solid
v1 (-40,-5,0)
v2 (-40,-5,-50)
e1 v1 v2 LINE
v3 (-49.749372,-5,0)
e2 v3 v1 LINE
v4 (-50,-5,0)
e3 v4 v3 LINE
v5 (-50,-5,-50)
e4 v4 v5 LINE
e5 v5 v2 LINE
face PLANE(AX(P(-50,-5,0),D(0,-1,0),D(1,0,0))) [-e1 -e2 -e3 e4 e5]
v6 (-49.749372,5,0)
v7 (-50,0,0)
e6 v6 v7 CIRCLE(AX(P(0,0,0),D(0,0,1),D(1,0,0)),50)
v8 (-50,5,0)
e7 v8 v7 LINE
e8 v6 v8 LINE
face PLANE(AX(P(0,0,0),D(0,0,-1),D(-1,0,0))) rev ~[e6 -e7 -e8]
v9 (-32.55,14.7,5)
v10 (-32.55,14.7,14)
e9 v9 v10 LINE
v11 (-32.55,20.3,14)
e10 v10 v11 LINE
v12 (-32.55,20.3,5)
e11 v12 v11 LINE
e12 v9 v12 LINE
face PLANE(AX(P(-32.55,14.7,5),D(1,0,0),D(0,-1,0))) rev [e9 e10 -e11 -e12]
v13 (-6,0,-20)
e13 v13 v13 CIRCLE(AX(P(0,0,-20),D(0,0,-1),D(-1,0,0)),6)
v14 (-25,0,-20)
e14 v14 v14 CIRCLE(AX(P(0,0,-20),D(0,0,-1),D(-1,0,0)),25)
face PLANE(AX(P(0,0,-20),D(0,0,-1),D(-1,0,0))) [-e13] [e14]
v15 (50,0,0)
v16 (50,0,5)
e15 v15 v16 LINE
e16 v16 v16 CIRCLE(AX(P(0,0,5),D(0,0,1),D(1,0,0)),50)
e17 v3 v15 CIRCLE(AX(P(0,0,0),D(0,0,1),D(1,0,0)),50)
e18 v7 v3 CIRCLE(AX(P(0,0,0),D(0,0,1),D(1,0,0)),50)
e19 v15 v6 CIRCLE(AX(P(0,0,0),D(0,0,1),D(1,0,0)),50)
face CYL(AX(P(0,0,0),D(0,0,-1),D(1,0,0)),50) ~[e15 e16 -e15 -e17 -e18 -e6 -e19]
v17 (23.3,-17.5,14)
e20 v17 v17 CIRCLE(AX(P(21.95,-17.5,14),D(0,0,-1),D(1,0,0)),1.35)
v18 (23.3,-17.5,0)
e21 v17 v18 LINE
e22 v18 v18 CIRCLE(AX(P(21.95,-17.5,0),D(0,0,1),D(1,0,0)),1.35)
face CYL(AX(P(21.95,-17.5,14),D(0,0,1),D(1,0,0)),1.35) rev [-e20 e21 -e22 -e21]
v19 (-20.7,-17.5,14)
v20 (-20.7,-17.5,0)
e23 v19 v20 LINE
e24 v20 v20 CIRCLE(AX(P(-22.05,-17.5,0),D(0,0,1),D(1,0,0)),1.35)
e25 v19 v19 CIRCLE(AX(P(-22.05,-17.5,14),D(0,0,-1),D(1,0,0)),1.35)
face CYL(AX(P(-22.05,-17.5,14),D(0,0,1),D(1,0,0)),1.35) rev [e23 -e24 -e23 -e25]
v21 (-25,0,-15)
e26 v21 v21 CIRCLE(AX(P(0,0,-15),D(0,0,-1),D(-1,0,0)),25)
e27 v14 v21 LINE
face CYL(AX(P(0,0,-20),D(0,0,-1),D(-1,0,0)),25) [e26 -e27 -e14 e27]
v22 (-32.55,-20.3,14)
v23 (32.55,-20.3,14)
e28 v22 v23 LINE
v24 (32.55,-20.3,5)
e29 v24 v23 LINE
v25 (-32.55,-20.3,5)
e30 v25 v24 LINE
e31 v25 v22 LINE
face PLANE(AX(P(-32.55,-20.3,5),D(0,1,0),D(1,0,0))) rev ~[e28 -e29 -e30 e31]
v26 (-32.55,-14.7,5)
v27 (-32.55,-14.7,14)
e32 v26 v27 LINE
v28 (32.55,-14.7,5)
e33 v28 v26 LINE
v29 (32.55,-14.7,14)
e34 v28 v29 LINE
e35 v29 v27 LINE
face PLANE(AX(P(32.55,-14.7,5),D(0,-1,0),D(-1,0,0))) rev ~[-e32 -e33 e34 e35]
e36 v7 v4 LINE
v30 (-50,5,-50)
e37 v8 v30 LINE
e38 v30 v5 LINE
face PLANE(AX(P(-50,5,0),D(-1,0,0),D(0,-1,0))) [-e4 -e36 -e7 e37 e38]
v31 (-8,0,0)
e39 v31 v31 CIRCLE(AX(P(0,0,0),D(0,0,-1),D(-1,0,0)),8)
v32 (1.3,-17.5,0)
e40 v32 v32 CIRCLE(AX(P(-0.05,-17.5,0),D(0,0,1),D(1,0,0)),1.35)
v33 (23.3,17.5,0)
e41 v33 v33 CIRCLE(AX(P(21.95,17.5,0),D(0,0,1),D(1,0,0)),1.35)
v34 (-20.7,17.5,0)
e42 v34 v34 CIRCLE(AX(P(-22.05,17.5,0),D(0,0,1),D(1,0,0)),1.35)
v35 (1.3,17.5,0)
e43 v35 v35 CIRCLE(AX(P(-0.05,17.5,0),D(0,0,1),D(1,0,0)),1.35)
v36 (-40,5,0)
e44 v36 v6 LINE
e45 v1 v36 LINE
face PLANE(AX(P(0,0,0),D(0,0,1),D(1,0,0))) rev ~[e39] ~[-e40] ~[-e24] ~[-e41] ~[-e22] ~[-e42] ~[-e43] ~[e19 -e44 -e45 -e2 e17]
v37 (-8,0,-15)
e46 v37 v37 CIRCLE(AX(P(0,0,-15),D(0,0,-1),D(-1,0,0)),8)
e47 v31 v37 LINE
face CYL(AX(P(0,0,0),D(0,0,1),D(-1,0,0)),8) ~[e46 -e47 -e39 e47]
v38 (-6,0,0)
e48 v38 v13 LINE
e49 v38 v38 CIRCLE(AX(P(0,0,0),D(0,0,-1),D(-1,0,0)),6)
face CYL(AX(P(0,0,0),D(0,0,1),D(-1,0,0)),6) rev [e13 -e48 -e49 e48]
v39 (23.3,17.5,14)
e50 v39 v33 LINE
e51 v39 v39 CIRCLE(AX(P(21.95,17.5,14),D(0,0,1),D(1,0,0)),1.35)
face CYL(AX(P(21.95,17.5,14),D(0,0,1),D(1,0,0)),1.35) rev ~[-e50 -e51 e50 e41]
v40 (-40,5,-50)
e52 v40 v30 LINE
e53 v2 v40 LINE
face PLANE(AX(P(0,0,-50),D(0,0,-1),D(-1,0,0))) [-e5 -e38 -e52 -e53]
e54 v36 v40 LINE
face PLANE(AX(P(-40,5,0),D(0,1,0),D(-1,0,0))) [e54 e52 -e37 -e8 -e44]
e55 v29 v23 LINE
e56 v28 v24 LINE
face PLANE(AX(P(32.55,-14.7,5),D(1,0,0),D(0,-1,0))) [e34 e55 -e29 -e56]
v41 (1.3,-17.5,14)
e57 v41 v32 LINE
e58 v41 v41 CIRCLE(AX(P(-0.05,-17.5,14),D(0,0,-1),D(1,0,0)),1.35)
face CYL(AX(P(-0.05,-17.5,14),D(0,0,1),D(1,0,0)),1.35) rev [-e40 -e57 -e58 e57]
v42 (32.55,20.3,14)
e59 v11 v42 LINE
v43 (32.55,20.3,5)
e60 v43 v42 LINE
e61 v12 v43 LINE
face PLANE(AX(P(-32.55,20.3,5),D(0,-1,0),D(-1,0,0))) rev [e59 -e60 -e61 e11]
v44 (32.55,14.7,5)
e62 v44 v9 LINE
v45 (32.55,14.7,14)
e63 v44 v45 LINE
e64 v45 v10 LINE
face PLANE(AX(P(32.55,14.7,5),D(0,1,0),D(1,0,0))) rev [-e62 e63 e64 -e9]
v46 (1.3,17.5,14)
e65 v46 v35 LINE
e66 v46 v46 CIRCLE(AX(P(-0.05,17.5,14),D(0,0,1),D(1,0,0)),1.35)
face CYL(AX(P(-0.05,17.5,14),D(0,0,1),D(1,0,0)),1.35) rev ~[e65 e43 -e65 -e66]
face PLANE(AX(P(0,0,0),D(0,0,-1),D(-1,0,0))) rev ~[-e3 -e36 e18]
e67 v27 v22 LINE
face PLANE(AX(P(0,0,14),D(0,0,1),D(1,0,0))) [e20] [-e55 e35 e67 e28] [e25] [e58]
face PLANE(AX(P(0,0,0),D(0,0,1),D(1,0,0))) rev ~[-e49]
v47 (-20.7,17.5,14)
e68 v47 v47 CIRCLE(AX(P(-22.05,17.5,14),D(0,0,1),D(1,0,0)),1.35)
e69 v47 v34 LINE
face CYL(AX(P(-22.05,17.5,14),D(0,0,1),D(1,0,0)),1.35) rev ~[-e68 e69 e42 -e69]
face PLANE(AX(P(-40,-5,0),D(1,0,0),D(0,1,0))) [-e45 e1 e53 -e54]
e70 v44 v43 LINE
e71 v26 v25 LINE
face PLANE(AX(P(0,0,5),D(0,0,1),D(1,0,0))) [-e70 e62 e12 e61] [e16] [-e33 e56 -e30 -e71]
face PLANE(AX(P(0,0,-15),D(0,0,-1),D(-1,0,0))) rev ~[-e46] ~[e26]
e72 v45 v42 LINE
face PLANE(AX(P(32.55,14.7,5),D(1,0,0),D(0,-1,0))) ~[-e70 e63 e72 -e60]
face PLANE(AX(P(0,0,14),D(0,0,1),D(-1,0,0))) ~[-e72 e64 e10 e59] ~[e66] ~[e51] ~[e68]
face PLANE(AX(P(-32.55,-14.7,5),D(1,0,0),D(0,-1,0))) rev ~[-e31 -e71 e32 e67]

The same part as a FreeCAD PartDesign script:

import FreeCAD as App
import Part
import Sketcher

V = App.Vector
Q = App.Units.Quantity


def add_polygon(sketch, points):
    """Adds a closed chain of lines whose ends are joined by coincident constraints."""
    first, n = sketch.GeometryCount, len(points)
    for a, b in zip(points, points[1:] + points[:1]):
        sketch.addGeometry(Part.LineSegment(App.Vector(*a, 0), App.Vector(*b, 0)), False)
    for i in range(n):
        sketch.addConstraint(Sketcher.Constraint("Coincident", first + i, 2, first + (i + 1) % n, 1))

doc = App.newDocument("Part")
params = doc.addObject("Spreadsheet::Sheet", "Params")
for row, (alias, value) in enumerate([
    ("sketch1_diameter", "100 mm"),
    ("pad1_length", "5 mm"),
    ("sketch2_diameter", "16 mm"),
    ("sketch2_diameter2", "12 mm"),
    ("pad2_length", "20 mm"),
    ("sketch3_width", "10 mm"),
    ("pad3_length", "50 mm"),
    ("sketch4_height", "5.6 mm"),
    ("pad4_length", "9 mm"),
    ("sketch5_diameter", "2.7 mm"),
    ("sketch6_diameter", "50 mm"),
    ("sketch6_diameter2", "16 mm"),
    ("pad5_length", "5 mm"),
], start=1):
    params.set(f"A{row}", alias)
    params.set(f"B{row}", "=" + value)
    params.setAlias(f"B{row}", alias)

body = doc.addObject("PartDesign::Body", "Body")

sketch1 = body.newObject("Sketcher::SketchObject", "Sketch")
sketch1.AttachmentSupport = (doc.getObject("XY_Plane"), [""])
sketch1.MapMode = "FlatFace"
sketch1.addGeometry(Part.Circle(V(0, 0, 0), V(0, 0, 1), 50), False)
sketch1.addConstraint([
    Sketcher.Constraint("Coincident", 0, 3, -1, 1),
    Sketcher.Constraint("Diameter", 0, Q("100 mm")),
])
sketch1.setExpression("Constraints[1]", "Params.sketch1_diameter")
pad1 = body.newObject("PartDesign::Pad", "Pad")
pad1.Profile = sketch1
pad1.setExpression("Length", "Params.pad1_length")

sketch2 = body.newObject("Sketcher::SketchObject", "Sketch001")
sketch2.AttachmentSupport = (doc.getObject("XY_Plane"), [""])
sketch2.MapMode = "FlatFace"
sketch2.addGeometry([
    Part.Circle(V(0, 0, 0), V(0, 0, 1), 8),
    Part.Circle(V(0, 0, 0), V(0, 0, 1), 6),
], False)
sketch2.addConstraint([
    Sketcher.Constraint("Coincident", 0, 3, -1, 1),
    Sketcher.Constraint("Coincident", 1, 3, -1, 1),
    Sketcher.Constraint("Diameter", 0, Q("16 mm")),
    Sketcher.Constraint("Diameter", 1, Q("12 mm")),
])
sketch2.setExpression("Constraints[2]", "Params.sketch2_diameter")
sketch2.setExpression("Constraints[3]", "Params.sketch2_diameter2")
pad2 = body.newObject("PartDesign::Pad", "Pad001")
pad2.Profile = sketch2
pad2.setExpression("Length", "Params.pad2_length")
pad2.Reversed = True

sketch3 = body.newObject("Sketcher::SketchObject", "Sketch002")
sketch3.AttachmentSupport = (doc.getObject("XY_Plane"), [""])
sketch3.MapMode = "FlatFace"
add_polygon(sketch3, [(-50, 5), (-40, 5), (-40, -5), (-50, -5)])
sketch3.addConstraint([
    Sketcher.Constraint("Horizontal", 0),
    Sketcher.Constraint("Vertical", 1),
    Sketcher.Constraint("Horizontal", 2),
    Sketcher.Constraint("Vertical", 3),
    Sketcher.Constraint("Equal", 2, 1),
    Sketcher.Constraint("DistanceX", 0, 1, 0, 2, Q("10 mm")),
    Sketcher.Constraint("DistanceY", -1, 1, 0, 2, Q("5 mm")),
    Sketcher.Constraint("DistanceX", 0, 2, -1, 1, Q("40 mm")),
])
sketch3.setExpression("Constraints[9]", "Params.sketch3_width")
pad3 = body.newObject("PartDesign::Pad", "Pad002")
pad3.Profile = sketch3
pad3.setExpression("Length", "Params.pad3_length")
pad3.Reversed = True

sketch4 = body.newObject("Sketcher::SketchObject", "Sketch003")
sketch4.AttachmentSupport = (doc.getObject("XY_Plane"), [""])
sketch4.MapMode = "FlatFace"
sketch4.AttachmentOffset = App.Placement(V(0, 0, 5), App.Rotation())
add_polygon(sketch4, [(32.55, -20.3), (32.55, -14.7), (-32.55, -14.7), (-32.55, -20.3)])
sketch4.addConstraint([
    Sketcher.Constraint("Vertical", 0),
    Sketcher.Constraint("Horizontal", 1),
    Sketcher.Constraint("Vertical", 2),
    Sketcher.Constraint("Horizontal", 3),
    Sketcher.Constraint("DistanceY", 0, 1, 0, 2, Q("5.6 mm")),
    Sketcher.Constraint("DistanceY", 2, 2, -1, 1, Q("20.3 mm")),
    Sketcher.Constraint("DistanceX", -1, 1, 0, 2, Q("32.55 mm")),
    Sketcher.Constraint("DistanceX", 1, 2, -1, 1, Q("32.55 mm")),
])
sketch4.setExpression("Constraints[8]", "Params.sketch4_height")
pad4 = body.newObject("PartDesign::Pad", "Pad003")
pad4.Profile = sketch4
pad4.setExpression("Length", "Params.pad4_length")
doc.recompute()

mirrored = body.newObject("PartDesign::Mirrored", "Mirrored")
mirrored.Originals = [pad4]
mirrored.MirrorPlane = (doc.getObject("XZ_Plane"), [""])
body.Tip = mirrored

sketch5 = body.newObject("Sketcher::SketchObject", "Sketch004")
sketch5.AttachmentSupport = (doc.getObject("XY_Plane"), [""])
sketch5.MapMode = "FlatFace"
sketch5.AttachmentOffset = App.Placement(V(0, 0, 14), App.Rotation())
sketch5.addGeometry([
    Part.Circle(V(-0.05, 17.5, 0), V(0, 0, 1), 1.35),
    Part.Circle(V(21.95, 17.5, 0), V(0, 0, 1), 1.35),
    Part.Circle(V(-22.05, 17.5, 0), V(0, 0, 1), 1.35),
], False)
sketch5.addConstraint([
    Sketcher.Constraint("Equal", 0, 1),
    Sketcher.Constraint("Equal", 1, 2),
    Sketcher.Constraint("Horizontal", 0, 3, 1, 3),
    Sketcher.Constraint("Horizontal", 1, 3, 2, 3),
    Sketcher.Constraint("Diameter", 0, Q("2.7 mm")),
    Sketcher.Constraint("DistanceX", 0, 3, 1, 3, Q("22 mm")),
    Sketcher.Constraint("DistanceX", 2, 3, 0, 3, Q("22 mm")),
    Sketcher.Constraint("DistanceY", -1, 1, 0, 3, Q("17.5 mm")),
    Sketcher.Constraint("DistanceX", 0, 3, -1, 1, Q("0.05 mm")),
])
sketch5.setExpression("Constraints[4]", "Params.sketch5_diameter")
pocket1 = body.newObject("PartDesign::Pocket", "Pocket")
pocket1.Profile = sketch5
pocket1.Type = "ThroughAll"
doc.recompute()

mirrored2 = body.newObject("PartDesign::Mirrored", "Mirrored001")
mirrored2.Originals = [pocket1]
mirrored2.MirrorPlane = (doc.getObject("XZ_Plane"), [""])
body.Tip = mirrored2

sketch6 = body.newObject("Sketcher::SketchObject", "Sketch005")
sketch6.AttachmentSupport = (doc.getObject("XY_Plane"), [""])
sketch6.MapMode = "FlatFace"
sketch6.AttachmentOffset = App.Placement(V(0, 0, -20), App.Rotation())
sketch6.addGeometry([
    Part.Circle(V(0, 0, 0), V(0, 0, 1), 25),
    Part.Circle(V(0, 0, 0), V(0, 0, 1), 8),
], False)
sketch6.addConstraint([
    Sketcher.Constraint("Coincident", 0, 3, -1, 1),
    Sketcher.Constraint("Coincident", 1, 3, -1, 1),
    Sketcher.Constraint("Diameter", 0, Q("50 mm")),
    Sketcher.Constraint("Diameter", 1, Q("16 mm")),
])
sketch6.setExpression("Constraints[2]", "Params.sketch6_diameter")
sketch6.setExpression("Constraints[3]", "Params.sketch6_diameter2")
pad5 = body.newObject("PartDesign::Pad", "Pad004")
pad5.Profile = sketch6
pad5.setExpression("Length", "Params.pad5_length")

doc.recompute()
